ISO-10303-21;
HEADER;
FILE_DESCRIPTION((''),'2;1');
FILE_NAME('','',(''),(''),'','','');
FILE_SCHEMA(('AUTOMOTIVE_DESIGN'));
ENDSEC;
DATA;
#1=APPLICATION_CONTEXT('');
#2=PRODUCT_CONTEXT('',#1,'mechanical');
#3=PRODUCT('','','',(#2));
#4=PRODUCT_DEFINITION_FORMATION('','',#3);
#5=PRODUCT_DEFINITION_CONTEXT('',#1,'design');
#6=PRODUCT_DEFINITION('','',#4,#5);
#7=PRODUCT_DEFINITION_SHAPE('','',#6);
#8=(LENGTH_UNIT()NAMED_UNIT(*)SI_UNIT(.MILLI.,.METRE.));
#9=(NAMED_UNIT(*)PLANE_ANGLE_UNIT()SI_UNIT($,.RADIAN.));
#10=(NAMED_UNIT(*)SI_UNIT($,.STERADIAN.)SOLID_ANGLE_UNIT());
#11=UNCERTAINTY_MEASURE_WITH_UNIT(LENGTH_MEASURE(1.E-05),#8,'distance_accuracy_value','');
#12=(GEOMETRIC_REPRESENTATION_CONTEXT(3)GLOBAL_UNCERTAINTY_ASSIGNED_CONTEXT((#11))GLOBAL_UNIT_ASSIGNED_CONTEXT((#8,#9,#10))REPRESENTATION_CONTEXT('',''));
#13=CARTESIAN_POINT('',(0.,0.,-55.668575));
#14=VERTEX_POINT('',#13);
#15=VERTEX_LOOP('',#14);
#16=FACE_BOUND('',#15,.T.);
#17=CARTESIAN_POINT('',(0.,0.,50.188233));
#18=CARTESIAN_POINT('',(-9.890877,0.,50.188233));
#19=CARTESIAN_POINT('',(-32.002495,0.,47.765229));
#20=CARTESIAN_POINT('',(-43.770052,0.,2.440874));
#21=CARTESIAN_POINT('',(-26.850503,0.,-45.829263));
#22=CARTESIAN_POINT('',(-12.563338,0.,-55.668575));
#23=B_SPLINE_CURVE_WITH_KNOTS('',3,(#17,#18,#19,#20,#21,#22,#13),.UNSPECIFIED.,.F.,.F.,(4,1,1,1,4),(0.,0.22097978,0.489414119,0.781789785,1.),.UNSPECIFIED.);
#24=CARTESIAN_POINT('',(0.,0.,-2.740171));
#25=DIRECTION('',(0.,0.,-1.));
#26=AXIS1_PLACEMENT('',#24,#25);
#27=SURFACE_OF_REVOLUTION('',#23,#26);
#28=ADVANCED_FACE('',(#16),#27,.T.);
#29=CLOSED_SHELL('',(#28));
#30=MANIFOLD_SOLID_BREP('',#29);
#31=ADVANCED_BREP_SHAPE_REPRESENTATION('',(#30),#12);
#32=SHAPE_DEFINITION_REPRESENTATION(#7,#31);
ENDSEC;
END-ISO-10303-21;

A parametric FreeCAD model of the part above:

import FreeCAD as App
import Part
import Sketcher
from FreeCAD import Vector

doc = App.newDocument("Part")
body = doc.addObject("PartDesign::Body", "Body")

# Sketch on XZ plane
sketch1 = body.newObject("Sketcher::SketchObject", "Sketch")
sketch1.AttachmentSupport = (doc.getObject("XZ_Plane"), [""])
sketch1.MapMode = "FlatFace"
sketch1.addGeometry([
    Part.LineSegment(Vector(0, -55.668575, 0), Vector(0, 50.188233, 0)),
    Part.BSplineCurve([Vector(0, 50.188233, 0), Vector(-9.890877, 50.188233, 0), Vector(-32.002495, 47.765229, 0), Vector(-43.770052, 2.440874, 0), Vector(-26.850503, -45.829263, 0), Vector(-12.563338, -55.668575, 0), Vector(0, -55.668575, 0)], [4, 1, 1, 1, 4], [0, 0.22097978, 0.489414119, 0.781789785, 1], False, 3, [1, 1, 1, 1, 1, 1, 1], False),
], False)
sketch1.addConstraint([
    Sketcher.Constraint("Block", 1),
    Sketcher.Constraint("Coincident", 0, 1, 1, 2),
    Sketcher.Constraint("Coincident", 1, 1, 0, 2),
])
revolution = body.newObject("PartDesign::Revolution", "Revolution")
revolution.Profile = sketch1
revolution.ReferenceAxis = (sketch1, ["V_Axis"])
revolution.Angle = 360

doc.recompute()
